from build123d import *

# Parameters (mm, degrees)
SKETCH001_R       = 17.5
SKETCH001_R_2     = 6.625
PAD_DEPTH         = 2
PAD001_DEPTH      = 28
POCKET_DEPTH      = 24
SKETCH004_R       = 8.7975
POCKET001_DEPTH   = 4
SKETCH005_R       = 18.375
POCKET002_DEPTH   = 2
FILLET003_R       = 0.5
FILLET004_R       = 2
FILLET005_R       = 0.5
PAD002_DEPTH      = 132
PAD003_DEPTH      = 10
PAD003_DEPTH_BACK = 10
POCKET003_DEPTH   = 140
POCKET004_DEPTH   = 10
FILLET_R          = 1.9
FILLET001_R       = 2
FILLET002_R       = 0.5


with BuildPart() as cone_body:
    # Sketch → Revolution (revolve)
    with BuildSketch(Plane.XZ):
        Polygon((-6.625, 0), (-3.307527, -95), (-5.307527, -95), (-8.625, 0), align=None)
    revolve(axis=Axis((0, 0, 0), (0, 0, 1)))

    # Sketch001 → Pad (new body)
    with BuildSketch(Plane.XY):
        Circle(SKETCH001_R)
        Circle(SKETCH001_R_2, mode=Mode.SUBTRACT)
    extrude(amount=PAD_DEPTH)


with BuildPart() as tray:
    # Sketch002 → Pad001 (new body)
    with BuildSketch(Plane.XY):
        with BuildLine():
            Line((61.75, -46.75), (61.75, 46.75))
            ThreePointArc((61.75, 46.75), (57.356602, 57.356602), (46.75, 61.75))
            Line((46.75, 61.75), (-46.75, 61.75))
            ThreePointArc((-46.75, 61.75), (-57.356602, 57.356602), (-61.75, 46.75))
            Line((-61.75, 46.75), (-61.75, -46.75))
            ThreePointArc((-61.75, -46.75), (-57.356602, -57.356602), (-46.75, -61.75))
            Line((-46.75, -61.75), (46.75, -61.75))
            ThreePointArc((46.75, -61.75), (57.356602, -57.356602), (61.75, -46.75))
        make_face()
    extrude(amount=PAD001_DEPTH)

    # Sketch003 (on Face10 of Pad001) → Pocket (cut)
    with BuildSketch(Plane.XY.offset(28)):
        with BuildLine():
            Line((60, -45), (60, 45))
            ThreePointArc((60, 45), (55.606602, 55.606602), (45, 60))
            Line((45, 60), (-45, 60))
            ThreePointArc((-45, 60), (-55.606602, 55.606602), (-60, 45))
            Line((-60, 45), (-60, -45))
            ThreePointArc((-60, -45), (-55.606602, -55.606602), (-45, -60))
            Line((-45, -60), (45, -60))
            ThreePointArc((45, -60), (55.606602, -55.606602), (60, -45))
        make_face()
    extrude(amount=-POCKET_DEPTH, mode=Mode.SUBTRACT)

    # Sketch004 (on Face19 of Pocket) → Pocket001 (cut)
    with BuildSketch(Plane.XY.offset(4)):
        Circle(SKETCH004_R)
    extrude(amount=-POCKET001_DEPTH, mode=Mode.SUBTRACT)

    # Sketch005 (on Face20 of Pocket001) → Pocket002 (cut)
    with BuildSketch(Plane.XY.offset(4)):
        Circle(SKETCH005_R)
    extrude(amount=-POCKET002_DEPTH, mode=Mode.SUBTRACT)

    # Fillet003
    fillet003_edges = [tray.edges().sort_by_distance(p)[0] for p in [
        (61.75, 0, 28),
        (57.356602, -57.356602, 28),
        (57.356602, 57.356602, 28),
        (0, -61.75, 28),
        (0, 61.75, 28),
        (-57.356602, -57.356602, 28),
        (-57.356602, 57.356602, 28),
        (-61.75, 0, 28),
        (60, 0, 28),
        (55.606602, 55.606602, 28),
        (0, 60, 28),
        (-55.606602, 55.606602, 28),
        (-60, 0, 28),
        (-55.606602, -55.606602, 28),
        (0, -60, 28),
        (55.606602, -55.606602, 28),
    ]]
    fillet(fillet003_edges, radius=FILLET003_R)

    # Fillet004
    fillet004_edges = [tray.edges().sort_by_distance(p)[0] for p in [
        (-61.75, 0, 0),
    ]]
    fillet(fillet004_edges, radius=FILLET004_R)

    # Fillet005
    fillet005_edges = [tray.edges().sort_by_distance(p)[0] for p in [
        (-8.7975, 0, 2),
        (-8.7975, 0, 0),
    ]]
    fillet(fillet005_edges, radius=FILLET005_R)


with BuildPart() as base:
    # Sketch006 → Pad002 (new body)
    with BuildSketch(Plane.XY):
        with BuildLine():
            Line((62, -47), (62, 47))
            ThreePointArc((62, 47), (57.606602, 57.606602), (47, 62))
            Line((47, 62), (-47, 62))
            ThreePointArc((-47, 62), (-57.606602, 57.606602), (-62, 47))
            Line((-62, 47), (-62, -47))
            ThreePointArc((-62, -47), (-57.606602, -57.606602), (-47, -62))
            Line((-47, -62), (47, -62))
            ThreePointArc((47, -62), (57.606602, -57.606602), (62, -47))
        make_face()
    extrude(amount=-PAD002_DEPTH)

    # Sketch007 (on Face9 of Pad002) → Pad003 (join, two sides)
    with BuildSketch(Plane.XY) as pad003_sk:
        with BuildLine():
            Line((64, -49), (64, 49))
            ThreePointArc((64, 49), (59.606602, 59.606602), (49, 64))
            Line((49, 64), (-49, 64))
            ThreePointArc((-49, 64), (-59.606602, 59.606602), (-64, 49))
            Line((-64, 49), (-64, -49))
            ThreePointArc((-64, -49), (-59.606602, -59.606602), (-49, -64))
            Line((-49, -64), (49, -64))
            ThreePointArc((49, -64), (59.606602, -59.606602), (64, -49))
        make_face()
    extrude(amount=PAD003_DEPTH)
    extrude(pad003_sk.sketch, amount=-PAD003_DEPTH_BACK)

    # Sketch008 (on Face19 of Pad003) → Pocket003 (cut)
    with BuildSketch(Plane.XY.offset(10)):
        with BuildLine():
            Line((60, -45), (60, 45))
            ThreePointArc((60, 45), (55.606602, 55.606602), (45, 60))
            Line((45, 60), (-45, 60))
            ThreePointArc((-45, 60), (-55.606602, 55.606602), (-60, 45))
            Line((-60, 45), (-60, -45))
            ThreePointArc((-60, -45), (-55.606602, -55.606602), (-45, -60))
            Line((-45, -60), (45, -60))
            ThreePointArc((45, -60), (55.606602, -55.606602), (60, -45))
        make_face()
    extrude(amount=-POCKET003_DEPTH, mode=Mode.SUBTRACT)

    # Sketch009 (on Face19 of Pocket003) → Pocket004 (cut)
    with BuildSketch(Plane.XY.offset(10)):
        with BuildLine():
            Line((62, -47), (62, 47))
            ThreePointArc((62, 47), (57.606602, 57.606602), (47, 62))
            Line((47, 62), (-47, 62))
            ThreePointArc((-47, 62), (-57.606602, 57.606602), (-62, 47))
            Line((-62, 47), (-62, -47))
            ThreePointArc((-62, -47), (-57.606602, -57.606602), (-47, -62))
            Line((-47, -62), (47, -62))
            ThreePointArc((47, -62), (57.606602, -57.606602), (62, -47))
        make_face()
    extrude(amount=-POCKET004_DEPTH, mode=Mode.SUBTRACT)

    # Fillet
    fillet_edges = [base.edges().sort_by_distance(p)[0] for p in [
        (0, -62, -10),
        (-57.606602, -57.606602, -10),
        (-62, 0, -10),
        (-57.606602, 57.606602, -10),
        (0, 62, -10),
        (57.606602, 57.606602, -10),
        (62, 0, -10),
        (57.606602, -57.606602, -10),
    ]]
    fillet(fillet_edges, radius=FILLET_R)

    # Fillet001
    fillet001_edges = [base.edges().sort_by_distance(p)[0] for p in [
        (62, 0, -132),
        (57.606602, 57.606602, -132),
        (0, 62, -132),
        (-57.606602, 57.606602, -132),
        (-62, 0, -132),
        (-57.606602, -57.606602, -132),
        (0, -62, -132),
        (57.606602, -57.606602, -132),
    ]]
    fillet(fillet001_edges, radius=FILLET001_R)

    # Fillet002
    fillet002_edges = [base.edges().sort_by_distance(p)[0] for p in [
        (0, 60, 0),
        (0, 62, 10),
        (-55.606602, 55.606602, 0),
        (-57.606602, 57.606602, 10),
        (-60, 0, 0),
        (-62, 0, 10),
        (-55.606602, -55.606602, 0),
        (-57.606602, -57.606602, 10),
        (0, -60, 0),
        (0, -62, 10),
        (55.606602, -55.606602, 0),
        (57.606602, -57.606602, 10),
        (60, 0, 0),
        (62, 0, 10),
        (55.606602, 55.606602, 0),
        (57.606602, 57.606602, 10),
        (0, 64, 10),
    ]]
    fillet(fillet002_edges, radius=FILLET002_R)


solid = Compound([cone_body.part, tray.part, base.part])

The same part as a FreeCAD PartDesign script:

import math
import FreeCAD as App
import Part
import Sketcher

V = App.Vector
Q = App.Units.Quantity


def edges_at(feature, points):
    """Names of the edges that pass closest to the given points."""
    edges = feature.Shape.Edges
    near = lambda p: min(range(len(edges)), key=lambda i: edges[i].distToShape(Part.Vertex(*p))[0])
    return sorted({f"Edge{near(p) + 1}" for p in points})

doc = App.newDocument("Part")
params = doc.addObject("Spreadsheet::Sheet", "Params")
for row, (alias, value) in enumerate([
    ("sketch1_width", "2 mm"),
    ("revolution_angle", "360 deg"),
    ("sketch2_diameter", "35 mm"),
    ("sketch2_diameter2", "13.25 mm"),
    ("pad1_length", "2 mm"),
    ("sketch3_radius", "14.999999 mm"),
    ("sketch3_width", "93.5 mm"),
    ("pad2_length", "28 mm"),
    ("sketch4_radius", "14.999999 mm"),
    ("sketch4_width", "90 mm"),
    ("pocket1_length", "24 mm"),
    ("pocket2_length", "4 mm"),
    ("sketch6_diameter", "36.75 mm"),
    ("pocket3_length", "2 mm"),
    ("fillet_radius", "0.5 mm"),
    ("fillet2_radius", "2 mm"),
    ("fillet3_radius", "0.5 mm"),
    ("sketch7_radius", "14.999999 mm"),
    ("sketch7_width", "94 mm"),
    ("pad3_length", "132 mm"),
    ("sketch8_radius", "14.999999 mm"),
    ("sketch8_width", "98 mm"),
    ("pad4_length", "10 mm"),
    ("pad4_length2", "10 mm"),
    ("sketch9_radius", "14.999999 mm"),
    ("sketch9_width", "90 mm"),
    ("pocket4_length", "140 mm"),
    ("sketch10_radius", "14.999999 mm"),
    ("sketch10_width", "94 mm"),
    ("pocket5_length", "10 mm"),
    ("fillet4_radius", "1.9 mm"),
    ("fillet5_radius", "2 mm"),
    ("fillet6_radius", "0.5 mm"),
], start=1):
    params.set(f"A{row}", alias)
    params.set(f"B{row}", "=" + value)
    params.setAlias(f"B{row}", alias)

body = doc.addObject("PartDesign::Body", "Body")

# Sketch on XZ plane
sketch1 = body.newObject("Sketcher::SketchObject", "Sketch")
sketch1.AttachmentSupport = (doc.getObject("XZ_Plane"), [""])
sketch1.MapMode = "FlatFace"
sketch1.addGeometry([
    Part.LineSegment(V(-3.3, -95, 0), V(-6.6, 0, 0)),
    Part.LineSegment(V(-6.6, 0, 0), V(-8.6, 0, 0)),
    Part.LineSegment(V(-8.6, 0, 0), V(-5.3, -95, 0)),
    Part.LineSegment(V(-5.3, -95, 0), V(-3.3, -95, 0)),
], False)
sketch1.addConstraint([
    Sketcher.Constraint("Coincident", 0, 2, 1, 1),
    Sketcher.Constraint("Coincident", 1, 2, 2, 1),
    Sketcher.Constraint("Coincident", 2, 2, 3, 1),
    Sketcher.Constraint("Coincident", 3, 2, 0, 1),
    Sketcher.Constraint("Horizontal", 1),
    Sketcher.Constraint("Horizontal", 3),
    Sketcher.Constraint("PointOnObject", 0, 2, -1),
    Sketcher.Constraint("Parallel", 0, 2),
    Sketcher.Constraint("DistanceX", 1, 2, 1, 1, Q("2 mm")),
    Sketcher.Constraint("Angle", 0, Q("92 deg")),
    Sketcher.Constraint("DistanceY", 2, 2, -1, 1, Q("95 mm")),
    Sketcher.Constraint("DistanceX", 0, 2, -1, 1, Q("6.625 mm")),
])
sketch1.setExpression("Constraints[8]", "Params.sketch1_width")
revolution = body.newObject("PartDesign::Revolution", "Revolution")
revolution.Profile = sketch1
revolution.ReferenceAxis = (sketch1, ["V_Axis"])
revolution.setExpression("Angle", "Params.revolution_angle")

# Sketch on XY plane
sketch2 = body.newObject("Sketcher::SketchObject", "Sketch001")
sketch2.AttachmentSupport = (doc.getObject("XY_Plane"), [""])
sketch2.MapMode = "FlatFace"
sketch2.addGeometry([
    Part.Circle(V(0, 0, 0), V(0, 0, 1), 18),
    Part.Circle(V(0, 0, 0), V(0, 0, 1), 7),
], False)
sketch2.addConstraint([
    Sketcher.Constraint("Coincident", 0, 3, -1, 1),
    Sketcher.Constraint("Coincident", 1, 3, -1, 1),
    Sketcher.Constraint("Diameter", 0, Q("35 mm")),
    Sketcher.Constraint("Diameter", 1, Q("13.25 mm")),
])
sketch2.setExpression("Constraints[2]", "Params.sketch2_diameter")
sketch2.setExpression("Constraints[3]", "Params.sketch2_diameter2")
pad1 = body.newObject("PartDesign::Pad", "Pad")
pad1.Profile = sketch2
pad1.setExpression("Length", "Params.pad1_length")
body2 = doc.addObject("PartDesign::Body", "Body001")

# Sketch on XY plane
sketch3 = body2.newObject("Sketcher::SketchObject", "Sketch002")
sketch3.AttachmentSupport = (doc.getObject("XY_Plane001"), [""])
sketch3.MapMode = "FlatFace"
sketch3.addGeometry([
    Part.LineSegment(V(62, -47, 0), V(62, 47, 0)),  # 0
    Part.ArcOfCircle(Part.Circle(V(47, 47, 0), V(0, 0, 1), 15), math.radians(0), math.radians(90)),  # 1
    Part.LineSegment(V(47, 62, 0), V(-47, 62, 0)),  # 2
    Part.ArcOfCircle(Part.Circle(V(-47, 47, 0), V(0, 0, 1), 15), math.radians(90), math.radians(180)),  # 3
    Part.LineSegment(V(-62, 47, 0), V(-62, -47, 0)),  # 4
    Part.ArcOfCircle(Part.Circle(V(-47, -47, 0), V(0, 0, 1), 15), math.radians(180), math.radians(270)),  # 5
    Part.LineSegment(V(-47, -62, 0), V(47, -62, 0)),  # 6
    Part.ArcOfCircle(Part.Circle(V(47, -47, 0), V(0, 0, 1), 15), math.radians(-90), math.radians(0)),  # 7
], False)
sketch3.addConstraint([
    Sketcher.Constraint("Tangent", 0, 2, 1, 1),
    Sketcher.Constraint("Tangent", 1, 2, 2, 1),
    Sketcher.Constraint("Tangent", 2, 2, 3, 1),
    Sketcher.Constraint("Tangent", 3, 2, 4, 1),
    Sketcher.Constraint("Tangent", 4, 2, 5, 1),
    Sketcher.Constraint("Tangent", 5, 2, 6, 1),
    Sketcher.Constraint("Tangent", 6, 2, 7, 1),
    Sketcher.Constraint("Tangent", 7, 2, 0, 1),
    Sketcher.Constraint("Vertical", 0),
    Sketcher.Constraint("Horizontal", 2),
    Sketcher.Constraint("Vertical", 4),
    Sketcher.Constraint("Horizontal", 6),
    Sketcher.Constraint("Equal", 1, 3),
    Sketcher.Constraint("Equal", 3, 5),
    Sketcher.Constraint("Equal", 5, 7),
    Sketcher.Constraint("Symmetric", 1, 3, 5, 3, -1, 1),
    Sketcher.Constraint("Equal", 6, 0),
    Sketcher.Constraint("Radius", 1, Q("14.999999 mm")),
    Sketcher.Constraint("DistanceX", 2, 2, 2, 1, Q("93.5 mm")),
])
sketch3.setExpression("Constraints[17]", "Params.sketch3_radius")
sketch3.setExpression("Constraints[18]", "Params.sketch3_width")
pad2 = body2.newObject("PartDesign::Pad", "Pad001")
pad2.Profile = sketch3
pad2.setExpression("Length", "Params.pad2_length")

# Sketch on XY plane
sketch4 = body2.newObject("Sketcher::SketchObject", "Sketch003")
sketch4.AttachmentSupport = (doc.getObject("XY_Plane001"), [""])
sketch4.MapMode = "FlatFace"
sketch4.AttachmentOffset = App.Placement(V(0, 0, 28), App.Rotation())
sketch4.addGeometry([
    Part.LineSegment(V(60, -45, 0), V(60, 45, 0)),  # 0
    Part.ArcOfCircle(Part.Circle(V(45, 45, 0), V(0, 0, 1), 15), math.radians(0), math.radians(90)),  # 1
    Part.LineSegment(V(45, 60, 0), V(-45, 60, 0)),  # 2
    Part.ArcOfCircle(Part.Circle(V(-45, 45, 0), V(0, 0, 1), 15), math.radians(90), math.radians(180)),  # 3
    Part.LineSegment(V(-60, 45, 0), V(-60, -45, 0)),  # 4
    Part.ArcOfCircle(Part.Circle(V(-45, -45, 0), V(0, 0, 1), 15), math.radians(180), math.radians(270)),  # 5
    Part.LineSegment(V(-45, -60, 0), V(45, -60, 0)),  # 6
    Part.ArcOfCircle(Part.Circle(V(45, -45, 0), V(0, 0, 1), 15), math.radians(-90), math.radians(0)),  # 7
], False)
sketch4.addConstraint([
    Sketcher.Constraint("Tangent", 0, 2, 1, 1),
    Sketcher.Constraint("Tangent", 1, 2, 2, 1),
    Sketcher.Constraint("Tangent", 2, 2, 3, 1),
    Sketcher.Constraint("Tangent", 3, 2, 4, 1),
    Sketcher.Constraint("Tangent", 4, 2, 5, 1),
    Sketcher.Constraint("Tangent", 5, 2, 6, 1),
    Sketcher.Constraint("Tangent", 6, 2, 7, 1),
    Sketcher.Constraint("Tangent", 7, 2, 0, 1),
    Sketcher.Constraint("Vertical", 0),
    Sketcher.Constraint("Horizontal", 2),
    Sketcher.Constraint("Vertical", 4),
    Sketcher.Constraint("Horizontal", 6),
    Sketcher.Constraint("Equal", 1, 3),
    Sketcher.Constraint("Equal", 3, 5),
    Sketcher.Constraint("Equal", 5, 7),
    Sketcher.Constraint("Symmetric", 1, 3, 5, 3, -1, 1),
    Sketcher.Constraint("Equal", 6, 0),
    Sketcher.Constraint("Radius", 1, Q("14.999999 mm")),
    Sketcher.Constraint("DistanceX", 2, 2, 2, 1, Q("90 mm")),
])
sketch4.setExpression("Constraints[17]", "Params.sketch4_radius")
sketch4.setExpression("Constraints[18]", "Params.sketch4_width")
pocket1 = body2.newObject("PartDesign::Pocket", "Pocket")
pocket1.Profile = sketch4
pocket1.setExpression("Length", "Params.pocket1_length")

# Sketch on XY plane
sketch5 = body2.newObject("Sketcher::SketchObject", "Sketch004")
sketch5.AttachmentSupport = (doc.getObject("XY_Plane001"), [""])
sketch5.MapMode = "FlatFace"
sketch5.AttachmentOffset = App.Placement(V(0, 0, 4), App.Rotation())
sketch5.addGeometry(Part.Circle(V(0, 0, 0), V(0, 0, 1), 9), False)
sketch5.addConstraint([
    Sketcher.Constraint("Coincident", 0, 3, -1, 1),
    Sketcher.Constraint("Diameter", 0, Q("17.595 mm")),
])
pocket2 = body2.newObject("PartDesign::Pocket", "Pocket001")
pocket2.Profile = sketch5
pocket2.setExpression("Length", "Params.pocket2_length")

# Sketch on XY plane
sketch6 = body2.newObject("Sketcher::SketchObject", "Sketch005")
sketch6.AttachmentSupport = (doc.getObject("XY_Plane001"), [""])
sketch6.MapMode = "FlatFace"
sketch6.AttachmentOffset = App.Placement(V(0, 0, 4), App.Rotation())
sketch6.addGeometry(Part.Circle(V(0, 0, 0), V(0, 0, 1), 18), False)
sketch6.addConstraint([
    Sketcher.Constraint("Coincident", 0, 3, -1, 1),
    Sketcher.Constraint("Diameter", 0, Q("36.75 mm")),
])
sketch6.setExpression("Constraints[1]", "Params.sketch6_diameter")
pocket3 = body2.newObject("PartDesign::Pocket", "Pocket002")
pocket3.Profile = sketch6
pocket3.setExpression("Length", "Params.pocket3_length")
doc.recompute()

fillet = body2.newObject("PartDesign::Fillet", "Fillet")
fillet.Base = (pocket3, edges_at(pocket3, [
    (61.75, 0, 28),
    (57.357, -57.357, 28),
    (57.357, 57.357, 28),
    (0, -61.75, 28),
    (0, 61.75, 28),
    (-57.357, -57.357, 28),
    (-57.357, 57.357, 28),
    (-61.75, 0, 28),
    (60, 0, 28),
    (55.607, 55.607, 28),
    (0, 60, 28),
    (-55.607, 55.607, 28),
    (-60, 0, 28),
    (-55.607, -55.607, 28),
    (0, -60, 28),
    (55.607, -55.607, 28),
]))
fillet.setExpression("Radius", "Params.fillet_radius")
doc.recompute()

fillet2 = body2.newObject("PartDesign::Fillet", "Fillet001")
fillet2.Base = (fillet, edges_at(fillet, [(-61.75, 0, 0)]))
fillet2.setExpression("Radius", "Params.fillet2_radius")
doc.recompute()

fillet3 = body2.newObject("PartDesign::Fillet", "Fillet002")
fillet3.Base = (fillet2, edges_at(fillet2, [(-8.797, 0, 2), (-8.797, 0, 0)]))
fillet3.setExpression("Radius", "Params.fillet3_radius")
body3 = doc.addObject("PartDesign::Body", "Body002")

# Sketch on XY plane
sketch7 = body3.newObject("Sketcher::SketchObject", "Sketch006")
sketch7.AttachmentSupport = (doc.getObject("XY_Plane002"), [""])
sketch7.MapMode = "FlatFace"
sketch7.addGeometry([
    Part.LineSegment(V(62, -47, 0), V(62, 47, 0)),  # 0
    Part.ArcOfCircle(Part.Circle(V(47, 47, 0), V(0, 0, 1), 15), math.radians(0), math.radians(90)),  # 1
    Part.LineSegment(V(47, 62, 0), V(-47, 62, 0)),  # 2
    Part.ArcOfCircle(Part.Circle(V(-47, 47, 0), V(0, 0, 1), 15), math.radians(90), math.radians(180)),  # 3
    Part.LineSegment(V(-62, 47, 0), V(-62, -47, 0)),  # 4
    Part.ArcOfCircle(Part.Circle(V(-47, -47, 0), V(0, 0, 1), 15), math.radians(180), math.radians(270)),  # 5
    Part.LineSegment(V(-47, -62, 0), V(47, -62, 0)),  # 6
    Part.ArcOfCircle(Part.Circle(V(47, -47, 0), V(0, 0, 1), 15), math.radians(-90), math.radians(0)),  # 7
], False)
sketch7.addConstraint([
    Sketcher.Constraint("Tangent", 0, 2, 1, 1),
    Sketcher.Constraint("Tangent", 1, 2, 2, 1),
    Sketcher.Constraint("Tangent", 2, 2, 3, 1),
    Sketcher.Constraint("Tangent", 3, 2, 4, 1),
    Sketcher.Constraint("Tangent", 4, 2, 5, 1),
    Sketcher.Constraint("Tangent", 5, 2, 6, 1),
    Sketcher.Constraint("Tangent", 6, 2, 7, 1),
    Sketcher.Constraint("Tangent", 7, 2, 0, 1),
    Sketcher.Constraint("Vertical", 0),
    Sketcher.Constraint("Horizontal", 2),
    Sketcher.Constraint("Vertical", 4),
    Sketcher.Constraint("Horizontal", 6),
    Sketcher.Constraint("Equal", 1, 3),
    Sketcher.Constraint("Equal", 3, 5),
    Sketcher.Constraint("Equal", 5, 7),
    Sketcher.Constraint("Symmetric", 1, 3, 5, 3, -1, 1),
    Sketcher.Constraint("Equal", 6, 0),
    Sketcher.Constraint("Radius", 1, Q("14.999999 mm")),
    Sketcher.Constraint("DistanceX", 2, 2, 2, 1, Q("94 mm")),
])
sketch7.setExpression("Constraints[17]", "Params.sketch7_radius")
sketch7.setExpression("Constraints[18]", "Params.sketch7_width")
pad3 = body3.newObject("PartDesign::Pad", "Pad002")
pad3.Profile = sketch7
pad3.setExpression("Length", "Params.pad3_length")
pad3.Reversed = True

# Sketch on XY plane
sketch8 = body3.newObject("Sketcher::SketchObject", "Sketch007")
sketch8.AttachmentSupport = (doc.getObject("XY_Plane002"), [""])
sketch8.MapMode = "FlatFace"
sketch8.addGeometry([
    Part.LineSegment(V(64, -49, 0), V(64, 49, 0)),  # 0
    Part.ArcOfCircle(Part.Circle(V(49, 49, 0), V(0, 0, 1), 15), math.radians(0), math.radians(90)),  # 1
    Part.LineSegment(V(49, 64, 0), V(-49, 64, 0)),  # 2
    Part.ArcOfCircle(Part.Circle(V(-49, 49, 0), V(0, 0, 1), 15), math.radians(90), math.radians(180)),  # 3
    Part.LineSegment(V(-64, 49, 0), V(-64, -49, 0)),  # 4
    Part.ArcOfCircle(Part.Circle(V(-49, -49, 0), V(0, 0, 1), 15), math.radians(180), math.radians(270)),  # 5
    Part.LineSegment(V(-49, -64, 0), V(49, -64, 0)),  # 6
    Part.ArcOfCircle(Part.Circle(V(49, -49, 0), V(0, 0, 1), 15), math.radians(-90), math.radians(0)),  # 7
], False)
sketch8.addConstraint([
    Sketcher.Constraint("Tangent", 0, 2, 1, 1),
    Sketcher.Constraint("Tangent", 1, 2, 2, 1),
    Sketcher.Constraint("Tangent", 2, 2, 3, 1),
    Sketcher.Constraint("Tangent", 3, 2, 4, 1),
    Sketcher.Constraint("Tangent", 4, 2, 5, 1),
    Sketcher.Constraint("Tangent", 5, 2, 6, 1),
    Sketcher.Constraint("Tangent", 6, 2, 7, 1),
    Sketcher.Constraint("Tangent", 7, 2, 0, 1),
    Sketcher.Constraint("Vertical", 0),
    Sketcher.Constraint("Horizontal", 2),
    Sketcher.Constraint("Vertical", 4),
    Sketcher.Constraint("Horizontal", 6),
    Sketcher.Constraint("Equal", 1, 3),
    Sketcher.Constraint("Equal", 3, 5),
    Sketcher.Constraint("Equal", 5, 7),
    Sketcher.Constraint("Symmetric", 1, 3, 5, 3, -1, 1),
    Sketcher.Constraint("Equal", 6, 0),
    Sketcher.Constraint("Radius", 1, Q("14.999999 mm")),
    Sketcher.Constraint("DistanceX", 2, 2, 2, 1, Q("98 mm")),
])
sketch8.setExpression("Constraints[17]", "Params.sketch8_radius")
sketch8.setExpression("Constraints[18]", "Params.sketch8_width")
pad4 = body3.newObject("PartDesign::Pad", "Pad003")
pad4.Profile = sketch8
pad4.Type = "TwoLengths"
pad4.setExpression("Length", "Params.pad4_length")
pad4.setExpression("Length2", "Params.pad4_length2")

# Sketch on XY plane
sketch9 = body3.newObject("Sketcher::SketchObject", "Sketch008")
sketch9.AttachmentSupport = (doc.getObject("XY_Plane002"), [""])
sketch9.MapMode = "FlatFace"
sketch9.AttachmentOffset = App.Placement(V(0, 0, 10), App.Rotation())
sketch9.addGeometry([
    Part.LineSegment(V(60, -45, 0), V(60, 45, 0)),  # 0
    Part.ArcOfCircle(Part.Circle(V(45, 45, 0), V(0, 0, 1), 15), math.radians(0), math.radians(90)),  # 1
    Part.LineSegment(V(45, 60, 0), V(-45, 60, 0)),  # 2
    Part.ArcOfCircle(Part.Circle(V(-45, 45, 0), V(0, 0, 1), 15), math.radians(90), math.radians(180)),  # 3
    Part.LineSegment(V(-60, 45, 0), V(-60, -45, 0)),  # 4
    Part.ArcOfCircle(Part.Circle(V(-45, -45, 0), V(0, 0, 1), 15), math.radians(180), math.radians(270)),  # 5
    Part.LineSegment(V(-45, -60, 0), V(45, -60, 0)),  # 6
    Part.ArcOfCircle(Part.Circle(V(45, -45, 0), V(0, 0, 1), 15), math.radians(-90), math.radians(0)),  # 7
], False)
sketch9.addConstraint([
    Sketcher.Constraint("Tangent", 0, 2, 1, 1),
    Sketcher.Constraint("Tangent", 1, 2, 2, 1),
    Sketcher.Constraint("Tangent", 2, 2, 3, 1),
    Sketcher.Constraint("Tangent", 3, 2, 4, 1),
    Sketcher.Constraint("Tangent", 4, 2, 5, 1),
    Sketcher.Constraint("Tangent", 5, 2, 6, 1),
    Sketcher.Constraint("Tangent", 6, 2, 7, 1),
    Sketcher.Constraint("Tangent", 7, 2, 0, 1),
    Sketcher.Constraint("Vertical", 0),
    Sketcher.Constraint("Horizontal", 2),
    Sketcher.Constraint("Vertical", 4),
    Sketcher.Constraint("Horizontal", 6),
    Sketcher.Constraint("Equal", 1, 3),
    Sketcher.Constraint("Equal", 3, 5),
    Sketcher.Constraint("Equal", 5, 7),
    Sketcher.Constraint("Symmetric", 1, 3, 5, 3, -1, 1),
    Sketcher.Constraint("Equal", 6, 0),
    Sketcher.Constraint("Radius", 1, Q("14.999999 mm")),
    Sketcher.Constraint("DistanceX", 2, 2, 2, 1, Q("90 mm")),
])
sketch9.setExpression("Constraints[17]", "Params.sketch9_radius")
sketch9.setExpression("Constraints[18]", "Params.sketch9_width")
pocket4 = body3.newObject("PartDesign::Pocket", "Pocket003")
pocket4.Profile = sketch9
pocket4.setExpression("Length", "Params.pocket4_length")

# Sketch on XY plane
sketch10 = body3.newObject("Sketcher::SketchObject", "Sketch009")
sketch10.AttachmentSupport = (doc.getObject("XY_Plane002"), [""])
sketch10.MapMode = "FlatFace"
sketch10.AttachmentOffset = App.Placement(V(0, 0, 10), App.Rotation())
sketch10.addGeometry([
    Part.LineSegment(V(62, -47, 0), V(62, 47, 0)),  # 0
    Part.ArcOfCircle(Part.Circle(V(47, 47, 0), V(0, 0, 1), 15), math.radians(0), math.radians(90)),  # 1
    Part.LineSegment(V(47, 62, 0), V(-47, 62, 0)),  # 2
    Part.ArcOfCircle(Part.Circle(V(-47, 47, 0), V(0, 0, 1), 15), math.radians(90), math.radians(180)),  # 3
    Part.LineSegment(V(-62, 47, 0), V(-62, -47, 0)),  # 4
    Part.ArcOfCircle(Part.Circle(V(-47, -47, 0), V(0, 0, 1), 15), math.radians(180), math.radians(270)),  # 5
    Part.LineSegment(V(-47, -62, 0), V(47, -62, 0)),  # 6
    Part.ArcOfCircle(Part.Circle(V(47, -47, 0), V(0, 0, 1), 15), math.radians(-90), math.radians(0)),  # 7
], False)
sketch10.addConstraint([
    Sketcher.Constraint("Tangent", 0, 2, 1, 1),
    Sketcher.Constraint("Tangent", 1, 2, 2, 1),
    Sketcher.Constraint("Tangent", 2, 2, 3, 1),
    Sketcher.Constraint("Tangent", 3, 2, 4, 1),
    Sketcher.Constraint("Tangent", 4, 2, 5, 1),
    Sketcher.Constraint("Tangent", 5, 2, 6, 1),
    Sketcher.Constraint("Tangent", 6, 2, 7, 1),
    Sketcher.Constraint("Tangent", 7, 2, 0, 1),
    Sketcher.Constraint("Vertical", 0),
    Sketcher.Constraint("Horizontal", 2),
    Sketcher.Constraint("Vertical", 4),
    Sketcher.Constraint("Horizontal", 6),
    Sketcher.Constraint("Equal", 1, 3),
    Sketcher.Constraint("Equal", 3, 5),
    Sketcher.Constraint("Equal", 5, 7),
    Sketcher.Constraint("Symmetric", 1, 3, 5, 3, -1, 1),
    Sketcher.Constraint("Equal", 6, 0),
    Sketcher.Constraint("Radius", 1, Q("14.999999 mm")),
    Sketcher.Constraint("DistanceX", 2, 2, 2, 1, Q("94 mm")),
])
sketch10.setExpression("Constraints[17]", "Params.sketch10_radius")
sketch10.setExpression("Constraints[18]", "Params.sketch10_width")
pocket5 = body3.newObject("PartDesign::Pocket", "Pocket004")
pocket5.Profile = sketch10
pocket5.setExpression("Length", "Params.pocket5_length")
doc.recompute()

fillet4 = body3.newObject("PartDesign::Fillet", "Fillet003")
fillet4.Base = (pocket5, edges_at(pocket5, [
    (0, -62, -10),
    (-57.607, -57.607, -10),
    (-62, 0, -10),
    (-57.607, 57.607, -10),
    (0, 62, -10),
    (57.607, 57.607, -10),
    (62, 0, -10),
    (57.607, -57.607, -10),
]))
fillet4.setExpression("Radius", "Params.fillet4_radius")
doc.recompute()

fillet5 = body3.newObject("PartDesign::Fillet", "Fillet004")
fillet5.Base = (fillet4, edges_at(fillet4, [
    (62, 0, -132),
    (57.607, 57.607, -132),
    (0, 62, -132),
    (-57.607, 57.607, -132),
    (-62, 0, -132),
    (-57.607, -57.607, -132),
    (0, -62, -132),
    (57.607, -57.607, -132),
]))
fillet5.setExpression("Radius", "Params.fillet5_radius")
doc.recompute()

fillet6 = body3.newObject("PartDesign::Fillet", "Fillet005")
fillet6.Base = (fillet5, edges_at(fillet5, [
    (0, 60, 0),
    (0, 62, 10),
    (-55.607, 55.607, 0),
    (-57.607, 57.607, 10),
    (-60, 0, 0),
    (-62, 0, 10),
    (-55.607, -55.607, 0),
    (-57.607, -57.607, 10),
    (0, -60, 0),
    (0, -62, 10),
    (55.607, -55.607, 0),
    (57.607, -57.607, 10),
    (60, 0, 0),
    (62, 0, 10),
    (55.607, 55.607, 0),
    (57.607, 57.607, 10),
    (0, 64, 10),
]))
fillet6.setExpression("Radius", "Params.fillet6_radius")

doc.recompute()
